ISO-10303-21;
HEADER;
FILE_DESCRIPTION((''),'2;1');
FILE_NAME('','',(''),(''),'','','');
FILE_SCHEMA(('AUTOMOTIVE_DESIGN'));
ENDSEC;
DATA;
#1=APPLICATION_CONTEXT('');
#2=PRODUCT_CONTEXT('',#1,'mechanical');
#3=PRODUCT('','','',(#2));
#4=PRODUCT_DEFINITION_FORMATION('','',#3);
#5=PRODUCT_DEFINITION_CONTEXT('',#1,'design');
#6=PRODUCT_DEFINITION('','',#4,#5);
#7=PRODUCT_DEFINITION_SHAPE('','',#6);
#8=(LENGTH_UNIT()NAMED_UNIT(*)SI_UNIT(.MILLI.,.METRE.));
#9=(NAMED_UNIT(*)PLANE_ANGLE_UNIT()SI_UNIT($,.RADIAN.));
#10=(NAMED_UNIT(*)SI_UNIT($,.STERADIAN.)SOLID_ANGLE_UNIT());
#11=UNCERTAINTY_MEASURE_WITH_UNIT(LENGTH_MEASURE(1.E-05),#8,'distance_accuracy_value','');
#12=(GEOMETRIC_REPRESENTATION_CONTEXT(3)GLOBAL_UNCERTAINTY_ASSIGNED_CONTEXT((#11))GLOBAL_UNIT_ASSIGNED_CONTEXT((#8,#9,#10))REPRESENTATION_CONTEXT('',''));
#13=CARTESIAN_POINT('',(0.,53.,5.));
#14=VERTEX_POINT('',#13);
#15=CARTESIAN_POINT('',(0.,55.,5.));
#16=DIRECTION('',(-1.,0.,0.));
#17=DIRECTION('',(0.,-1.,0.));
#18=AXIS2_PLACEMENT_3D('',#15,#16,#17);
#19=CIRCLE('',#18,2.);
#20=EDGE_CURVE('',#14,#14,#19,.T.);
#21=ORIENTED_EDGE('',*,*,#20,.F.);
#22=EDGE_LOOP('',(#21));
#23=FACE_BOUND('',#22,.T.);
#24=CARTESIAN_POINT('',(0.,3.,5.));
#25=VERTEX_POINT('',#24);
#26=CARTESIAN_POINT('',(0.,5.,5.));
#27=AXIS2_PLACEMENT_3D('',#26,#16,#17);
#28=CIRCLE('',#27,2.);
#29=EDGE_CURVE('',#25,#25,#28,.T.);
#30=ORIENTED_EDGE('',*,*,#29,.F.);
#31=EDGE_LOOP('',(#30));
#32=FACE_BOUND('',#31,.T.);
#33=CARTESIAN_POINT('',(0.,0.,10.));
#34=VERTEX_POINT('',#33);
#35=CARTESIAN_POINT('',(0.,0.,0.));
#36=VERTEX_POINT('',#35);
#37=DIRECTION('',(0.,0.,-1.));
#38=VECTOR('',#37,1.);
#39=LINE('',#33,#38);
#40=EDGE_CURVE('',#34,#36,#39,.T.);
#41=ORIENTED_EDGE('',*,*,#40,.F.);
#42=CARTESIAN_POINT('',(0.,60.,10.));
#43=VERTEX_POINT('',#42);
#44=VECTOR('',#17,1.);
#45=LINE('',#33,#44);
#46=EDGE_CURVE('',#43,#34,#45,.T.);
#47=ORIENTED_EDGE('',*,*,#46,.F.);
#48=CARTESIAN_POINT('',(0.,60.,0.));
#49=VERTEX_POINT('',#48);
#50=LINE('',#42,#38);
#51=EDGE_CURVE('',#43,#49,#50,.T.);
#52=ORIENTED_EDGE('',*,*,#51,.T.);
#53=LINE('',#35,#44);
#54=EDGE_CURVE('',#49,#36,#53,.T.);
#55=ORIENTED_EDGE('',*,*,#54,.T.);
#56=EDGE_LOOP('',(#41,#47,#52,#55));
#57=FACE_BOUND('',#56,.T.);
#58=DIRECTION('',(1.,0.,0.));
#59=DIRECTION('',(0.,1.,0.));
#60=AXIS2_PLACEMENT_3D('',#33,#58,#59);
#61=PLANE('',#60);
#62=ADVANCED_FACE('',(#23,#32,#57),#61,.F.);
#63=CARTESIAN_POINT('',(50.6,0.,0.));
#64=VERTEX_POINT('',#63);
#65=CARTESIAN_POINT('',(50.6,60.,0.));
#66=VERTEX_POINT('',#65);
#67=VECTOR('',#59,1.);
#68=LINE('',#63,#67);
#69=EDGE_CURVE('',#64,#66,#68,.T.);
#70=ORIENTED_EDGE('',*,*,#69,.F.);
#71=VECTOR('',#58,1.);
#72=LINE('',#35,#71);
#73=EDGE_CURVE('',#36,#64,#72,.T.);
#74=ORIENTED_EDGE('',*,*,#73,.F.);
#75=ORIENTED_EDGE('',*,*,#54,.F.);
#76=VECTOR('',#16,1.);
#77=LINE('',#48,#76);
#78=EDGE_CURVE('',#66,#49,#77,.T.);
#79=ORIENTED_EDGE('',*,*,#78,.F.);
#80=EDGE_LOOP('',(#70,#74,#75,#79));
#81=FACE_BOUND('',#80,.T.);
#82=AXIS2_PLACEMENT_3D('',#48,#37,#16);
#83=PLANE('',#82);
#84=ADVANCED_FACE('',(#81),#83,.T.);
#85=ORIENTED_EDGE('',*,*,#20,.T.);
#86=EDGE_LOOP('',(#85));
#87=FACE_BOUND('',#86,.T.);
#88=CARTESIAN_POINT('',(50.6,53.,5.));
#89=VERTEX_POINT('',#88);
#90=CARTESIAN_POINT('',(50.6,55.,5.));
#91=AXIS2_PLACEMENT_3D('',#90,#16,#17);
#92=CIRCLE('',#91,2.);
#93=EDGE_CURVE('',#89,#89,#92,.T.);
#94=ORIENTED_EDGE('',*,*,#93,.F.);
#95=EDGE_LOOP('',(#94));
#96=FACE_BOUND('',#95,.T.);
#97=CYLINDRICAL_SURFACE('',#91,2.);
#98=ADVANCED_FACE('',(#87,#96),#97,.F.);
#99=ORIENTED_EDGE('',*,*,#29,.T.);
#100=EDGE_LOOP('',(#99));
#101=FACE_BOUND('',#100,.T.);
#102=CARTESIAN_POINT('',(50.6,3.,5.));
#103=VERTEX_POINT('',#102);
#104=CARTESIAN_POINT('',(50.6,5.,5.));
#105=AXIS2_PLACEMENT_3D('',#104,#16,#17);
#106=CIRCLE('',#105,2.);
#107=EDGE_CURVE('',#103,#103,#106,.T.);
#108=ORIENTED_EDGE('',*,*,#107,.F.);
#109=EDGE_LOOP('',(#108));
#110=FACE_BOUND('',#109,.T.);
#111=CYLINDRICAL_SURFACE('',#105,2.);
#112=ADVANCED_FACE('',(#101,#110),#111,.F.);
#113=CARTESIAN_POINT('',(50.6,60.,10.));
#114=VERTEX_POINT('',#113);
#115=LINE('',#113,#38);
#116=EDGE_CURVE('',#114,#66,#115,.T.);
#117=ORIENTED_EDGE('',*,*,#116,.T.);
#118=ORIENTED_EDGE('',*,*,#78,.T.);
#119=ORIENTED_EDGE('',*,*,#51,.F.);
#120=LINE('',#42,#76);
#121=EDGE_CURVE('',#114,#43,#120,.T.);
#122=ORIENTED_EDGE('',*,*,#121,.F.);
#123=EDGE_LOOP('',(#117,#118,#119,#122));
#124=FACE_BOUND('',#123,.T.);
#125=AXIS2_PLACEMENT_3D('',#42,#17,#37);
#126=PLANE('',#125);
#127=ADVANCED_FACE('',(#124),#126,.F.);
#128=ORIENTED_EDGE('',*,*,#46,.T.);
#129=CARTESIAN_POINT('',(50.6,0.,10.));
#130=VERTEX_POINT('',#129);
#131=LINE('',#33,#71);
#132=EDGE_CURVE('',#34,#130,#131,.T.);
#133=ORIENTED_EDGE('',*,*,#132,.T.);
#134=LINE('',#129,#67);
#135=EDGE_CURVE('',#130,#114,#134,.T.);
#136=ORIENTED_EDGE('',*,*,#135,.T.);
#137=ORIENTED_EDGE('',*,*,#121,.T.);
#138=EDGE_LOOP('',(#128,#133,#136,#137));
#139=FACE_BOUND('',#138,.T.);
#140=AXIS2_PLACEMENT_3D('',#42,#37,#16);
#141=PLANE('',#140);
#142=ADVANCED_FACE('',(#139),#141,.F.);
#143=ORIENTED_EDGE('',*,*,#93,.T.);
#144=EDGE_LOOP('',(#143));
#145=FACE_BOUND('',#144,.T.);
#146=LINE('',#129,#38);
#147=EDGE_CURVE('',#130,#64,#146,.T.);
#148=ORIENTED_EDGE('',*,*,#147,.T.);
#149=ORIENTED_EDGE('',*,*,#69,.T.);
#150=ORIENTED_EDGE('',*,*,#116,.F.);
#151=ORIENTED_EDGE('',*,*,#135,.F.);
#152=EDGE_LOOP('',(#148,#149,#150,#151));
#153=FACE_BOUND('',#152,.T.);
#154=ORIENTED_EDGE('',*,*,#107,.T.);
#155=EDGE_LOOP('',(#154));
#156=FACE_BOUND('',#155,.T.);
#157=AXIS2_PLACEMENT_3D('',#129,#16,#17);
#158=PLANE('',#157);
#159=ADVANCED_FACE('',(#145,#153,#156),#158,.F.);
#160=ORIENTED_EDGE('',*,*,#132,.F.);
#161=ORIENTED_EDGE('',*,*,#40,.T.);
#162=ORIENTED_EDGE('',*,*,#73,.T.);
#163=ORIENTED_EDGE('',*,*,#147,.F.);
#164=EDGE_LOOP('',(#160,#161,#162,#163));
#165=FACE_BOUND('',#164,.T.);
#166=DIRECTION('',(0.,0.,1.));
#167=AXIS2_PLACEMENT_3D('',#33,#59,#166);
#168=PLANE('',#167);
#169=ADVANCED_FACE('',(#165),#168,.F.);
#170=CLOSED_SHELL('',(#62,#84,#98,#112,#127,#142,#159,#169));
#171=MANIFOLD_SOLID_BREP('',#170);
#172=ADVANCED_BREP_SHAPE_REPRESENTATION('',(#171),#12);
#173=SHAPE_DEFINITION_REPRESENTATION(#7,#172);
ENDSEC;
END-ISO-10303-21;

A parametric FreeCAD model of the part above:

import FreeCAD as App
import Part
import Sketcher


def add_polygon(sketch, points):
    """Adds a closed chain of lines whose ends are joined by coincident constraints."""
    first, n = sketch.GeometryCount, len(points)
    for a, b in zip(points, points[1:] + points[:1]):
        sketch.addGeometry(Part.LineSegment(App.Vector(*a, 0), App.Vector(*b, 0)), False)
    for i in range(n):
        sketch.addConstraint(Sketcher.Constraint("Coincident", first + i, 2, first + (i + 1) % n, 1))

doc = App.newDocument("Part")
body = doc.addObject("PartDesign::Body", "Body")

# Sketch on XY plane
sketch1 = body.newObject("Sketcher::SketchObject", "Sketch")
sketch1.AttachmentSupport = (doc.getObject("XY_Plane"), [""])
sketch1.MapMode = "FlatFace"
add_polygon(sketch1, [(0, 60), (0, 0), (51, 0), (51, 60)])  # lines 0-3
sketch1.addConstraint([
    Sketcher.Constraint("Vertical", 0),
    Sketcher.Constraint("Horizontal", 1),
    Sketcher.Constraint("Vertical", 2),
    Sketcher.Constraint("Horizontal", 3),
    Sketcher.Constraint("Coincident", 0, 2, -1, 1),
    Sketcher.Constraint("DistanceY", 0, 2, 0, 1, 60.0),
    Sketcher.Constraint("DistanceX", 1, 1, 1, 2, 50.6),
])
pad1 = body.newObject("PartDesign::Pad", "Pad")
pad1.Profile = sketch1
pad1.Length = 10

# Sketch on YZ plane
sketch2 = body.newObject("Sketcher::SketchObject", "Sketch001")
sketch2.AttachmentSupport = (doc.getObject("YZ_Plane"), [""])
sketch2.MapMode = "FlatFace"
sketch2.addGeometry([
    Part.Circle(App.Vector(55, 5, 0), App.Vector(0, 0, 1), 2),
    Part.Circle(App.Vector(5, 5, 0), App.Vector(0, 0, 1), 2),
], False)
sketch2.addConstraint([
    Sketcher.Constraint("Equal", 0, 1),
    Sketcher.Constraint("Horizontal", 0, 3, 1, 3),
    Sketcher.Constraint("Diameter", 0, 4.0),
    Sketcher.Constraint("DistanceX", -1, 1, 0, 3, 55.0),
    Sketcher.Constraint("DistanceY", -1, 1, 0, 3, 5.0),
    Sketcher.Constraint("DistanceX", -1, 1, 1, 3, 5.0),
])
pocket1 = body.newObject("PartDesign::Pocket", "Pocket")
pocket1.Profile = sketch2
pocket1.Length = 50.6
pocket1.Reversed = True

doc.recompute()
